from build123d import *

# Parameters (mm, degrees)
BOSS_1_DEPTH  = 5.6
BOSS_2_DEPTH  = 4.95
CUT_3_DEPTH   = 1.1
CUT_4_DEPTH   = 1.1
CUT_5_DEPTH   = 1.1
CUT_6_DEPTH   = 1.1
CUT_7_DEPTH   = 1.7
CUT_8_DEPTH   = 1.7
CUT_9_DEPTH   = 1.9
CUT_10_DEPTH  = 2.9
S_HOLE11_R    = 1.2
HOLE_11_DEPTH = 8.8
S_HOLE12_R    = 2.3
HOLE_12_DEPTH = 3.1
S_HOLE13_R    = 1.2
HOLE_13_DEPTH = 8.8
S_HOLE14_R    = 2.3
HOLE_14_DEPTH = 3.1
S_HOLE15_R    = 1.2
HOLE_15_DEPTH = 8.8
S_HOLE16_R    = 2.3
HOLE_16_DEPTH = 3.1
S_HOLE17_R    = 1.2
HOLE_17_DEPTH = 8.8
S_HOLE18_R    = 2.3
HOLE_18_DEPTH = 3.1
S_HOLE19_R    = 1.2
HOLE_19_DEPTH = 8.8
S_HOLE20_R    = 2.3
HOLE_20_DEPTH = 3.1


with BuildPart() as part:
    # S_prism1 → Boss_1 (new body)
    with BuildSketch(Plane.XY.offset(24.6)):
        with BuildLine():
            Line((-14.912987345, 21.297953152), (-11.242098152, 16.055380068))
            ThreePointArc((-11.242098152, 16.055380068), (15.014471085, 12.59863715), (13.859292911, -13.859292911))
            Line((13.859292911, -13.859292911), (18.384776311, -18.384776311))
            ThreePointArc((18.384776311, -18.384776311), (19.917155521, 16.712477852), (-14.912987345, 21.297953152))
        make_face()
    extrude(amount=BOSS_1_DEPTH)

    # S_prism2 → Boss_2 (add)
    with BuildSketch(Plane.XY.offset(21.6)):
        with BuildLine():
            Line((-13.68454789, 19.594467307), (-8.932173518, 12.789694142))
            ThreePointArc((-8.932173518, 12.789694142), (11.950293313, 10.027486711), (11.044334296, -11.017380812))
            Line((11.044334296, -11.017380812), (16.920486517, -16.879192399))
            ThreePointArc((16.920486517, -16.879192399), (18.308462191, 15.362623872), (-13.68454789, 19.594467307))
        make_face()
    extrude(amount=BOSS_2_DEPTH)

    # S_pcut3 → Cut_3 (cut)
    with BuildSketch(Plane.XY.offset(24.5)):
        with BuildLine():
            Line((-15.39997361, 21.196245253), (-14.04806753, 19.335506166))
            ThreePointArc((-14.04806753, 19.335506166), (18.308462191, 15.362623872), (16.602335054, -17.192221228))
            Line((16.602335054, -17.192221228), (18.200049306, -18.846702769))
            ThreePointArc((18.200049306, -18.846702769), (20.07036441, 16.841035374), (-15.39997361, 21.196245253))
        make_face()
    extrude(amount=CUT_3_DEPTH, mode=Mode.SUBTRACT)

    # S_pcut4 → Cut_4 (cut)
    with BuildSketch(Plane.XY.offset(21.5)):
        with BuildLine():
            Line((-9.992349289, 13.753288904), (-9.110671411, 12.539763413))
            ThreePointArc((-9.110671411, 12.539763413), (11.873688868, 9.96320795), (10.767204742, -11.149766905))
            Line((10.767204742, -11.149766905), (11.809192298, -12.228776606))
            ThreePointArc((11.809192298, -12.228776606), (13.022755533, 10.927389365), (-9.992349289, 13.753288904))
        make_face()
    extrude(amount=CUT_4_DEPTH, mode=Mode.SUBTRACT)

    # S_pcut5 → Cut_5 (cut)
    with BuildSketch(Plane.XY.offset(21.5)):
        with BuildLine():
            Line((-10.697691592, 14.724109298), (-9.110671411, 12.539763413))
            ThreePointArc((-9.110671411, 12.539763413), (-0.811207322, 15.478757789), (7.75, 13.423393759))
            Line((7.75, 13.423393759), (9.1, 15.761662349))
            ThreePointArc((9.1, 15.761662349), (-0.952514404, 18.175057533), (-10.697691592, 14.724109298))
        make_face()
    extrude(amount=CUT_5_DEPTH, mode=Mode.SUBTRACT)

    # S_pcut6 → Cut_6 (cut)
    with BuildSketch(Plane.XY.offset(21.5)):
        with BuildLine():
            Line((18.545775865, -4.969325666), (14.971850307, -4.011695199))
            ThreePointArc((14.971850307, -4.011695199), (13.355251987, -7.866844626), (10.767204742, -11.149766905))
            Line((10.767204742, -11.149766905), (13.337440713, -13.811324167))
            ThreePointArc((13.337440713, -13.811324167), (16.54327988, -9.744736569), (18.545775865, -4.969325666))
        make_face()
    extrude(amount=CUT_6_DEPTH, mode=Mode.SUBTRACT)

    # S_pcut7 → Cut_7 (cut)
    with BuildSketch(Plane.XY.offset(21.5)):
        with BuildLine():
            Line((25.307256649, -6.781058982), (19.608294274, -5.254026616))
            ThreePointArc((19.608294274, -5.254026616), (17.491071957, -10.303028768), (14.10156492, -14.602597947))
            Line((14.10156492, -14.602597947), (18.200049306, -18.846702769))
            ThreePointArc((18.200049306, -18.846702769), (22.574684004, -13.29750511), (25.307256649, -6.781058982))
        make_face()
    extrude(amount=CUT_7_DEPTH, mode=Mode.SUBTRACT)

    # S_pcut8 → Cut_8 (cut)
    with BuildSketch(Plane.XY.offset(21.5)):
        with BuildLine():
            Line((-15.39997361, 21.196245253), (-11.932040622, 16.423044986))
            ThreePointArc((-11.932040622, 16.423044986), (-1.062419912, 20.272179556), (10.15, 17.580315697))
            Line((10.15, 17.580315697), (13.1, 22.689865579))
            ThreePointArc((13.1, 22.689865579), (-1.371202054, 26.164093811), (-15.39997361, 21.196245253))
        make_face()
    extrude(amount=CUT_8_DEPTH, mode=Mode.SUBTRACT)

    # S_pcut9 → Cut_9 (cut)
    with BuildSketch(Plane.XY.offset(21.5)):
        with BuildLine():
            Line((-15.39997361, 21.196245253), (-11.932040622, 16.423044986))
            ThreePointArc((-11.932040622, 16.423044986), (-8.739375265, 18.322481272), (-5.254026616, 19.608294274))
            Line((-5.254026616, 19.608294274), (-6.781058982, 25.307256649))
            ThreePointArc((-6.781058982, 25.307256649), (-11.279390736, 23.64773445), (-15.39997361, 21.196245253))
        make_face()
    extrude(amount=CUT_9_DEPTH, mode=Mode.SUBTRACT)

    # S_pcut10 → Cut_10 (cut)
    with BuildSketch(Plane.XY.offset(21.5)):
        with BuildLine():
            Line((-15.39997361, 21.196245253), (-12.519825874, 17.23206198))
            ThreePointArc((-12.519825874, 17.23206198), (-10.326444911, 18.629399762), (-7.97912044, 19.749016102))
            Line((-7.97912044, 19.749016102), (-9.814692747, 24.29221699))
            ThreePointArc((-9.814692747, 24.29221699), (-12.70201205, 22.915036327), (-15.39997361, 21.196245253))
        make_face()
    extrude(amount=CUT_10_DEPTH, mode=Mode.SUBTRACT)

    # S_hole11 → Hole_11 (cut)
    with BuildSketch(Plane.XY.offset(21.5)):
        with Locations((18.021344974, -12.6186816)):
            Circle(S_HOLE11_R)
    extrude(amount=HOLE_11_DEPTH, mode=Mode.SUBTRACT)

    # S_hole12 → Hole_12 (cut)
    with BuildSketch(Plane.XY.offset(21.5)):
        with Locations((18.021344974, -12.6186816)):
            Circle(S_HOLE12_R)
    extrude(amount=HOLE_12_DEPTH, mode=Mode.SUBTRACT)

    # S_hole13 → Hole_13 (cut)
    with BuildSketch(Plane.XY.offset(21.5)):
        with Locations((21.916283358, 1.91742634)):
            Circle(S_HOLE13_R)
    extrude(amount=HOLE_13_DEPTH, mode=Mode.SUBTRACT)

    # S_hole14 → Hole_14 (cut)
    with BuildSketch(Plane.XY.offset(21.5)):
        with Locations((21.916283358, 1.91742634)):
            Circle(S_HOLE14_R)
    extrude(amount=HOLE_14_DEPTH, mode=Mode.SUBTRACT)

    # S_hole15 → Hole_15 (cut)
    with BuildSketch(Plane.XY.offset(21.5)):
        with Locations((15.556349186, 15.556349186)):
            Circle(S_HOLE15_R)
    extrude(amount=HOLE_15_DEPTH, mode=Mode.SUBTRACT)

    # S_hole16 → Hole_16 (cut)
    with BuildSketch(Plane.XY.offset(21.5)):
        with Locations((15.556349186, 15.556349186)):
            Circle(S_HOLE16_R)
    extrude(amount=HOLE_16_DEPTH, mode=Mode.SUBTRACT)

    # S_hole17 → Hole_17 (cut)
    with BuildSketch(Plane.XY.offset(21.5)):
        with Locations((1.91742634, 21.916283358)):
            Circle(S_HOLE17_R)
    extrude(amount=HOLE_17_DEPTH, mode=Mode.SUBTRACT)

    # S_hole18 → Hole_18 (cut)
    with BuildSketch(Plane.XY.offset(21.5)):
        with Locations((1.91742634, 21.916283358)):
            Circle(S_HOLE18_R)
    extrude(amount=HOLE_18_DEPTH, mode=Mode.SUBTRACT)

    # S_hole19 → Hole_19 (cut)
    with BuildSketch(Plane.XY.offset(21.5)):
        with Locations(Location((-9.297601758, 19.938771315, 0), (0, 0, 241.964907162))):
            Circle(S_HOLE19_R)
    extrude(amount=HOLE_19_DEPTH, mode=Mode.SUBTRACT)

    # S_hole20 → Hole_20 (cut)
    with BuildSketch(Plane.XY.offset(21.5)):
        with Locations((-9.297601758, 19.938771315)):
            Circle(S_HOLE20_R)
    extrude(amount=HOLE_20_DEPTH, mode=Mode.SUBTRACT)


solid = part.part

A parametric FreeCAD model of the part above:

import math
import FreeCAD as App
import Part
import Sketcher

V = App.Vector
Q = App.Units.Quantity

doc = App.newDocument("Part")
body = doc.addObject("PartDesign::Body", "Body")

# Sketch on XY plane
sketch1 = body.newObject("Sketcher::SketchObject", "Sketch")
sketch1.AttachmentSupport = (doc.getObject("XY_Plane"), [""])
sketch1.MapMode = "FlatFace"
sketch1.AttachmentOffset = App.Placement(V(0, 0, 24.6), App.Rotation())
sketch1.addGeometry([
    Part.LineSegment(V(-15, 21, 0), V(-11, 16, 0)),
    Part.ArcOfCircle(Part.Circle(V(0, 0, 0), V(0, 0, 1), 20), math.radians(-45), math.radians(125)),
    Part.LineSegment(V(14, -14, 0), V(18, -18, 0)),
    Part.ArcOfCircle(Part.Circle(V(0, 0, 0), V(0, 0, 1), 26), math.radians(-45), math.radians(125)),
], False)
sketch1.addConstraint([
    Sketcher.Constraint("Coincident", 0, 2, 1, 2),
    Sketcher.Constraint("Coincident", 1, 1, 2, 1),
    Sketcher.Constraint("Coincident", 2, 2, 3, 1),
    Sketcher.Constraint("Coincident", 3, 2, 0, 1),
    Sketcher.Constraint("Coincident", 1, 3, -1, 1),
    Sketcher.Constraint("Coincident", 3, 3, -1, 1),
    Sketcher.Constraint("Radius", 3, 26.0),
    Sketcher.Constraint("Radius", 1, 19.6),
    Sketcher.Constraint("Angle", 0, Q("-55 deg")),
    Sketcher.Constraint("Angle", 2, Q("-45 deg")),
    Sketcher.Constraint("DistanceX", 0, 2, -1, 1, 11.242098),
    Sketcher.Constraint("DistanceX", 0, 2, 1, 1, 25.101391),
])
pad1 = body.newObject("PartDesign::Pad", "Pad")
pad1.Profile = sketch1
pad1.Length = 5.6

# Sketch on XY plane
sketch2 = body.newObject("Sketcher::SketchObject", "Sketch001")
sketch2.AttachmentSupport = (doc.getObject("XY_Plane"), [""])
sketch2.MapMode = "FlatFace"
sketch2.AttachmentOffset = App.Placement(V(0, 0, 21.6), App.Rotation())
sketch2.addGeometry([
    Part.LineSegment(V(-14, 20, 0), V(-9, 13, 0)),
    Part.ArcOfCircle(Part.Circle(V(0, 0, 0), V(0, 0, 1), 16), math.radians(-45), math.radians(125)),
    Part.LineSegment(V(11, -11, 0), V(17, -17, 0)),
    Part.ArcOfCircle(Part.Circle(V(0, 0, 0), V(0, 0, 1), 24), math.radians(-45), math.radians(125)),
], False)
sketch2.addConstraint([
    Sketcher.Constraint("Coincident", 0, 2, 1, 2),
    Sketcher.Constraint("Coincident", 1, 1, 2, 1),
    Sketcher.Constraint("Coincident", 2, 2, 3, 1),
    Sketcher.Constraint("Coincident", 3, 2, 0, 1),
    Sketcher.Constraint("Coincident", 1, 3, -1, 1),
    Sketcher.Constraint("Coincident", 3, 3, -1, 1),
    Sketcher.Constraint("Radius", 1, 15.6),
    Sketcher.Constraint("Radius", 3, 23.9),
    Sketcher.Constraint("Angle", 0, Q("-55.07 deg")),
    Sketcher.Constraint("Angle", 2, Q("-44.93 deg")),
    Sketcher.Constraint("DistanceY", 1, 1, -1, 1, 11.017381),
    Sketcher.Constraint("DistanceX", 0, 2, 2, 2, 25.85266),
])
pad2 = body.newObject("PartDesign::Pad", "Pad001")
pad2.Profile = sketch2
pad2.Length = 4.95

# Sketch on XY plane
sketch3 = body.newObject("Sketcher::SketchObject", "Sketch002")
sketch3.AttachmentSupport = (doc.getObject("XY_Plane"), [""])
sketch3.MapMode = "FlatFace"
sketch3.AttachmentOffset = App.Placement(V(0, 0, 24.5), App.Rotation())
sketch3.addGeometry([
    Part.LineSegment(V(-15.4, 21.2, 0), V(-14, 19.3, 0)),
    Part.ArcOfCircle(Part.Circle(V(0, 0, 0), V(0, 0, 1), 23.9), math.radians(-46), math.radians(126)),
    Part.LineSegment(V(16.6, -17.2, 0), V(18.2, -18.8, 0)),
    Part.ArcOfCircle(Part.Circle(V(0, 0, 0), V(0, 0, 1), 26.2), math.radians(-46), math.radians(126)),
], False)
sketch3.addConstraint([
    Sketcher.Constraint("Coincident", 0, 2, 1, 2),
    Sketcher.Constraint("Coincident", 1, 1, 2, 1),
    Sketcher.Constraint("Coincident", 2, 2, 3, 1),
    Sketcher.Constraint("Coincident", 3, 2, 0, 1),
    Sketcher.Constraint("Coincident", 1, 3, -1, 1),
    Sketcher.Constraint("Coincident", 3, 3, -1, 1),
    Sketcher.Constraint("Radius", 1, 23.9),
    Sketcher.Constraint("Radius", 3, 26.2),
    Sketcher.Constraint("Angle", 0, Q("-54 deg")),
    Sketcher.Constraint("Angle", 2, Q("-46 deg")),
    Sketcher.Constraint("DistanceY", 1, 1, -1, 1, 17.192221),
    Sketcher.Constraint("DistanceY", 2, 2, 0, 2, 38.182209),
])
pocket1 = body.newObject("PartDesign::Pocket", "Pocket")
pocket1.Profile = sketch3
pocket1.Length = 1.1
pocket1.Reversed = True

# Sketch on XY plane
sketch4 = body.newObject("Sketcher::SketchObject", "Sketch003")
sketch4.AttachmentSupport = (doc.getObject("XY_Plane"), [""])
sketch4.MapMode = "FlatFace"
sketch4.AttachmentOffset = App.Placement(V(0, 0, 21.5), App.Rotation())
sketch4.addGeometry([
    Part.LineSegment(V(-10, 13.8, 0), V(-9.1, 12.5, 0)),
    Part.ArcOfCircle(Part.Circle(V(0, 0, 0), V(0, 0, 1), 15.5), math.radians(-46), math.radians(126)),
    Part.LineSegment(V(10.8, -11.1, 0), V(11.8, -12.2, 0)),
    Part.ArcOfCircle(Part.Circle(V(0, 0, 0), V(0, 0, 1), 17), math.radians(-46), math.radians(126)),
], False)
sketch4.addConstraint([
    Sketcher.Constraint("Coincident", 0, 2, 1, 2),
    Sketcher.Constraint("Coincident", 1, 1, 2, 1),
    Sketcher.Constraint("Coincident", 2, 2, 3, 1),
    Sketcher.Constraint("Coincident", 3, 2, 0, 1),
    Sketcher.Constraint("Coincident", 1, 3, -1, 1),
    Sketcher.Constraint("Coincident", 3, 3, -1, 1),
    Sketcher.Constraint("Radius", 3, 17.0),
    Sketcher.Constraint("Radius", 1, 15.5),
    Sketcher.Constraint("Angle", 0, Q("-54 deg")),
    Sketcher.Constraint("Angle", 2, Q("-46 deg")),
    Sketcher.Constraint("DistanceX", 0, 2, -1, 1, 9.110671),
    Sketcher.Constraint("DistanceY", 1, 1, 0, 2, 23.68953),
])
pocket2 = body.newObject("PartDesign::Pocket", "Pocket001")
pocket2.Profile = sketch4
pocket2.Length = 1.1
pocket2.Reversed = True

# Sketch on XY plane
sketch5 = body.newObject("Sketcher::SketchObject", "Sketch004")
sketch5.AttachmentSupport = (doc.getObject("XY_Plane"), [""])
sketch5.MapMode = "FlatFace"
sketch5.AttachmentOffset = App.Placement(V(0, 0, 21.5), App.Rotation())
sketch5.addGeometry([
    Part.LineSegment(V(-10.7, 14.7, 0), V(-9.1, 12.5, 0)),
    Part.ArcOfCircle(Part.Circle(V(0, 0, 0), V(0, 0, 1), 15.5), math.radians(60), math.radians(126)),
    Part.LineSegment(V(7.8, 13.4, 0), V(9.1, 15.8, 0)),
    Part.ArcOfCircle(Part.Circle(V(0, 0, 0), V(0, 0, 1), 18.2), math.radians(60), math.radians(126)),
], False)
sketch5.addConstraint([
    Sketcher.Constraint("Coincident", 0, 2, 1, 2),
    Sketcher.Constraint("Coincident", 1, 1, 2, 1),
    Sketcher.Constraint("Coincident", 2, 2, 3, 1),
    Sketcher.Constraint("Coincident", 3, 2, 0, 1),
    Sketcher.Constraint("Coincident", 1, 3, -1, 1),
    Sketcher.Constraint("Coincident", 3, 3, -1, 1),
    Sketcher.Constraint("Radius", 1, 15.5),
    Sketcher.Constraint("Radius", 3, 18.2),
    Sketcher.Constraint("Angle", 0, Q("-54 deg")),
    Sketcher.Constraint("Angle", 2, Q("60 deg")),
    Sketcher.Constraint("DistanceX", -1, 1, 2, 2, 9.1),
    Sketcher.Constraint("DistanceY", 0, 2, 2, 2, 3.221899),
])
pocket3 = body.newObject("PartDesign::Pocket", "Pocket002")
pocket3.Profile = sketch5
pocket3.Length = 1.1
pocket3.Reversed = True

# Sketch on XY plane
sketch6 = body.newObject("Sketcher::SketchObject", "Sketch005")
sketch6.AttachmentSupport = (doc.getObject("XY_Plane"), [""])
sketch6.MapMode = "FlatFace"
sketch6.AttachmentOffset = App.Placement(V(0, 0, 21.5), App.Rotation())
sketch6.addGeometry([
    Part.LineSegment(V(18.5, -5, 0), V(15, -4, 0)),
    Part.ArcOfCircle(Part.Circle(V(0, 0, 0), V(0, 0, 1), 15.5), math.radians(-46), math.radians(-15)),
    Part.LineSegment(V(10.8, -11.1, 0), V(13.3, -13.8, 0)),
    Part.ArcOfCircle(Part.Circle(V(0, 0, 0), V(0, 0, 1), 19.2), math.radians(-46), math.radians(-15)),
], False)
sketch6.addConstraint([
    Sketcher.Constraint("Coincident", 0, 2, 1, 2),
    Sketcher.Constraint("Coincident", 1, 1, 2, 1),
    Sketcher.Constraint("Coincident", 2, 2, 3, 1),
    Sketcher.Constraint("Coincident", 3, 2, 0, 1),
    Sketcher.Constraint("Coincident", 1, 3, -1, 1),
    Sketcher.Constraint("Coincident", 3, 3, -1, 1),
    Sketcher.Constraint("Radius", 1, 15.5),
    Sketcher.Constraint("Radius", 3, 19.2),
    Sketcher.Constraint("Angle", 0, Q("165 deg")),
    Sketcher.Constraint("Angle", 2, Q("-46 deg")),
    Sketcher.Constraint("DistanceY", 2, 2, 3, 2, 8.841999),
    Sketcher.Constraint("DistanceX", -1, 1, 0, 2, 14.97185),
])
pocket4 = body.newObject("PartDesign::Pocket", "Pocket003")
pocket4.Profile = sketch6
pocket4.Length = 1.1
pocket4.Reversed = True

# Sketch on XY plane
sketch7 = body.newObject("Sketcher::SketchObject", "Sketch006")
sketch7.AttachmentSupport = (doc.getObject("XY_Plane"), [""])
sketch7.MapMode = "FlatFace"
sketch7.AttachmentOffset = App.Placement(V(0, 0, 21.5), App.Rotation())
sketch7.addGeometry([
    Part.LineSegment(V(25, -7, 0), V(20, -5, 0)),
    Part.ArcOfCircle(Part.Circle(V(0, 0, 0), V(0, 0, 1), 20), math.radians(-46), math.radians(-15)),
    Part.LineSegment(V(14, -15, 0), V(18, -19, 0)),
    Part.ArcOfCircle(Part.Circle(V(0, 0, 0), V(0, 0, 1), 26), math.radians(-46), math.radians(-15)),
], False)
sketch7.addConstraint([
    Sketcher.Constraint("Coincident", 0, 2, 1, 2),
    Sketcher.Constraint("Coincident", 1, 1, 2, 1),
    Sketcher.Constraint("Coincident", 2, 2, 3, 1),
    Sketcher.Constraint("Coincident", 3, 2, 0, 1),
    Sketcher.Constraint("Coincident", 1, 3, -1, 1),
    Sketcher.Constraint("Coincident", 3, 3, -1, 1),
    Sketcher.Constraint("Radius", 1, 20.3),
    Sketcher.Constraint("Radius", 3, 26.2),
    Sketcher.Constraint("Angle", 0, Q("165 deg")),
    Sketcher.Constraint("Angle", 2, Q("-46 deg")),
    Sketcher.Constraint("DistanceX", -1, 1, 2, 2, 18.200049),
    Sketcher.Constraint("DistanceY", 3, 2, -1, 1, 6.781059),
])
pocket5 = body.newObject("PartDesign::Pocket", "Pocket004")
pocket5.Profile = sketch7
pocket5.Length = 1.7
pocket5.Reversed = True

# Sketch on XY plane
sketch8 = body.newObject("Sketcher::SketchObject", "Sketch007")
sketch8.AttachmentSupport = (doc.getObject("XY_Plane"), [""])
sketch8.MapMode = "FlatFace"
sketch8.AttachmentOffset = App.Placement(V(0, 0, 21.5), App.Rotation())
sketch8.addGeometry([
    Part.LineSegment(V(-15, 21, 0), V(-12, 16, 0)),
    Part.ArcOfCircle(Part.Circle(V(0, 0, 0), V(0, 0, 1), 20), math.radians(60), math.radians(126)),
    Part.LineSegment(V(10, 18, 0), V(13, 23, 0)),
    Part.ArcOfCircle(Part.Circle(V(0, 0, 0), V(0, 0, 1), 26), math.radians(60), math.radians(126)),
], False)
sketch8.addConstraint([
    Sketcher.Constraint("Coincident", 0, 2, 1, 2),
    Sketcher.Constraint("Coincident", 1, 1, 2, 1),
    Sketcher.Constraint("Coincident", 2, 2, 3, 1),
    Sketcher.Constraint("Coincident", 3, 2, 0, 1),
    Sketcher.Constraint("Coincident", 1, 3, -1, 1),
    Sketcher.Constraint("Coincident", 3, 3, -1, 1),
    Sketcher.Constraint("Radius", 1, 20.3),
    Sketcher.Constraint("Radius", 3, 26.2),
    Sketcher.Constraint("Angle", 0, Q("-54 deg")),
    Sketcher.Constraint("Angle", 2, Q("60 deg")),
    Sketcher.Constraint("DistanceX", -1, 1, 2, 2, 13.1),
    Sketcher.Constraint("DistanceX", 0, 2, -1, 1, 11.932041),
])
pocket6 = body.newObject("PartDesign::Pocket", "Pocket005")
pocket6.Profile = sketch8
pocket6.Length = 1.7
pocket6.Reversed = True

# Sketch on XY plane
sketch9 = body.newObject("Sketcher::SketchObject", "Sketch008")
sketch9.AttachmentSupport = (doc.getObject("XY_Plane"), [""])
sketch9.MapMode = "FlatFace"
sketch9.AttachmentOffset = App.Placement(V(0, 0, 21.5), App.Rotation())
sketch9.addGeometry([
    Part.LineSegment(V(-15, 21, 0), V(-12, 16, 0)),
    Part.ArcOfCircle(Part.Circle(V(0, 0, 0), V(0, 0, 1), 20), math.radians(105), math.radians(126)),
    Part.LineSegment(V(-5, 20, 0), V(-7, 25, 0)),
    Part.ArcOfCircle(Part.Circle(V(0, 0, 0), V(0, 0, 1), 26), math.radians(105), math.radians(126)),
], False)
sketch9.addConstraint([
    Sketcher.Constraint("Coincident", 0, 2, 1, 2),
    Sketcher.Constraint("Coincident", 1, 1, 2, 1),
    Sketcher.Constraint("Coincident", 2, 2, 3, 1),
    Sketcher.Constraint("Coincident", 3, 2, 0, 1),
    Sketcher.Constraint("Coincident", 1, 3, -1, 1),
    Sketcher.Constraint("Coincident", 3, 3, -1, 1),
    Sketcher.Constraint("Radius", 1, 20.3),
    Sketcher.Constraint("Radius", 3, 26.2),
    Sketcher.Constraint("Angle", 0, Q("-54 deg")),
    Sketcher.Constraint("Angle", 2, Q("105 deg")),
    Sketcher.Constraint("DistanceX", 0, 2, -1, 1, 11.932041),
    Sketcher.Constraint("DistanceX", 2, 2, -1, 1, 6.781059),
])
pocket7 = body.newObject("PartDesign::Pocket", "Pocket006")
pocket7.Profile = sketch9
pocket7.Length = 1.9
pocket7.Reversed = True

# Sketch on XY plane
sketch10 = body.newObject("Sketcher::SketchObject", "Sketch009")
sketch10.AttachmentSupport = (doc.getObject("XY_Plane"), [""])
sketch10.MapMode = "FlatFace"
sketch10.AttachmentOffset = App.Placement(V(0, 0, 21.5), App.Rotation())
sketch10.addGeometry([
    Part.LineSegment(V(-15.4, 21.2, 0), V(-12.5, 17.2, 0)),
    Part.ArcOfCircle(Part.Circle(V(0, 0, 0), V(0, 0, 1), 21.3), math.radians(112), math.radians(126)),
    Part.LineSegment(V(-8, 19.7, 0), V(-9.8, 24.3, 0)),
    Part.ArcOfCircle(Part.Circle(V(0, 0, 0), V(0, 0, 1), 26.2), math.radians(112), math.radians(126)),
], False)
sketch10.addConstraint([
    Sketcher.Constraint("Coincident", 0, 2, 1, 2),
    Sketcher.Constraint("Coincident", 1, 1, 2, 1),
    Sketcher.Constraint("Coincident", 2, 2, 3, 1),
    Sketcher.Constraint("Coincident", 3, 2, 0, 1),
    Sketcher.Constraint("Coincident", 1, 3, -1, 1),
    Sketcher.Constraint("Coincident", 3, 3, -1, 1),
    Sketcher.Constraint("Radius", 1, 21.3),
    Sketcher.Constraint("Radius", 3, 26.2),
    Sketcher.Constraint("Angle", 0, Q("-54 deg")),
    Sketcher.Constraint("Angle", 2, Q("112 deg")),
    Sketcher.Constraint("DistanceY", -1, 1, 0, 2, 17.232062),
    Sketcher.Constraint("DistanceX", 1, 1, -1, 1, 7.97912),
])
pocket8 = body.newObject("PartDesign::Pocket", "Pocket007")
pocket8.Profile = sketch10
pocket8.Length = 2.9
pocket8.Reversed = True

# Sketch on XY plane
sketch11 = body.newObject("Sketcher::SketchObject", "Sketch010")
sketch11.AttachmentSupport = (doc.getObject("XY_Plane"), [""])
sketch11.MapMode = "FlatFace"
sketch11.AttachmentOffset = App.Placement(V(0, 0, 21.5), App.Rotation())
sketch11.addGeometry(Part.Circle(V(18, -12.6, 0), V(0, 0, 1), 1.2), False)
sketch11.addConstraint([
    Sketcher.Constraint("Diameter", 0, 2.4),
    Sketcher.Constraint("DistanceY", 0, 3, -1, 1, 12.618682),
    Sketcher.Constraint("DistanceX", -1, 1, 0, 3, 18.021345),
])
pocket9 = body.newObject("PartDesign::Pocket", "Pocket008")
pocket9.Profile = sketch11
pocket9.Length = 8.8
pocket9.Reversed = True

# Sketch on XY plane
sketch12 = body.newObject("Sketcher::SketchObject", "Sketch011")
sketch12.AttachmentSupport = (doc.getObject("XY_Plane"), [""])
sketch12.MapMode = "FlatFace"
sketch12.AttachmentOffset = App.Placement(V(0, 0, 21.5), App.Rotation())
sketch12.addGeometry(Part.Circle(V(18, -12.6, 0), V(0, 0, 1), 2.3), False)
sketch12.addConstraint([
    Sketcher.Constraint("Diameter", 0, 4.6),
    Sketcher.Constraint("DistanceY", 0, 3, -1, 1, 12.618682),
    Sketcher.Constraint("DistanceX", -1, 1, 0, 3, 18.021345),
])
pocket10 = body.newObject("PartDesign::Pocket", "Pocket009")
pocket10.Profile = sketch12
pocket10.Length = 3.1
pocket10.Reversed = True

# Sketch on XY plane
sketch13 = body.newObject("Sketcher::SketchObject", "Sketch012")
sketch13.AttachmentSupport = (doc.getObject("XY_Plane"), [""])
sketch13.MapMode = "FlatFace"
sketch13.AttachmentOffset = App.Placement(V(0, 0, 21.5), App.Rotation())
sketch13.addGeometry(Part.Circle(V(21.9, 1.9, 0), V(0, 0, 1), 1.2), False)
sketch13.addConstraint([
    Sketcher.Constraint("Diameter", 0, 2.4),
    Sketcher.Constraint("DistanceX", -1, 1, 0, 3, 21.916283),
    Sketcher.Constraint("DistanceY", -1, 1, 0, 3, 1.917426),
])
pocket11 = body.newObject("PartDesign::Pocket", "Pocket010")
pocket11.Profile = sketch13
pocket11.Length = 8.8
pocket11.Reversed = True

# Sketch on XY plane
sketch14 = body.newObject("Sketcher::SketchObject", "Sketch013")
sketch14.AttachmentSupport = (doc.getObject("XY_Plane"), [""])
sketch14.MapMode = "FlatFace"
sketch14.AttachmentOffset = App.Placement(V(0, 0, 21.5), App.Rotation())
sketch14.addGeometry(Part.Circle(V(21.9, 1.9, 0), V(0, 0, 1), 2.3), False)
sketch14.addConstraint([
    Sketcher.Constraint("Diameter", 0, 4.6),
    Sketcher.Constraint("DistanceX", -1, 1, 0, 3, 21.916283),
    Sketcher.Constraint("DistanceY", -1, 1, 0, 3, 1.917426),
])
pocket12 = body.newObject("PartDesign::Pocket", "Pocket011")
pocket12.Profile = sketch14
pocket12.Length = 3.1
pocket12.Reversed = True

# Sketch on XY plane
sketch15 = body.newObject("Sketcher::SketchObject", "Sketch014")
sketch15.AttachmentSupport = (doc.getObject("XY_Plane"), [""])
sketch15.MapMode = "FlatFace"
sketch15.AttachmentOffset = App.Placement(V(0, 0, 21.5), App.Rotation())
sketch15.addGeometry(Part.Circle(V(15.6, 15.6, 0), V(0, 0, 1), 1.2), False)
sketch15.addConstraint([
    Sketcher.Constraint("Diameter", 0, 2.4),
    Sketcher.Constraint("DistanceX", -1, 1, 0, 3, 15.556349),
    Sketcher.Constraint("DistanceY", -1, 1, 0, 3, 15.556349),
])
pocket13 = body.newObject("PartDesign::Pocket", "Pocket012")
pocket13.Profile = sketch15
pocket13.Length = 8.8
pocket13.Reversed = True

# Sketch on XY plane
sketch16 = body.newObject("Sketcher::SketchObject", "Sketch015")
sketch16.AttachmentSupport = (doc.getObject("XY_Plane"), [""])
sketch16.MapMode = "FlatFace"
sketch16.AttachmentOffset = App.Placement(V(0, 0, 21.5), App.Rotation())
sketch16.addGeometry(Part.Circle(V(15.6, 15.6, 0), V(0, 0, 1), 2.3), False)
sketch16.addConstraint([
    Sketcher.Constraint("Diameter", 0, 4.6),
    Sketcher.Constraint("DistanceX", -1, 1, 0, 3, 15.556349),
    Sketcher.Constraint("DistanceY", -1, 1, 0, 3, 15.556349),
])
pocket14 = body.newObject("PartDesign::Pocket", "Pocket013")
pocket14.Profile = sketch16
pocket14.Length = 3.1
pocket14.Reversed = True

# Sketch on XY plane
sketch17 = body.newObject("Sketcher::SketchObject", "Sketch016")
sketch17.AttachmentSupport = (doc.getObject("XY_Plane"), [""])
sketch17.MapMode = "FlatFace"
sketch17.AttachmentOffset = App.Placement(V(0, 0, 21.5), App.Rotation())
sketch17.addGeometry(Part.Circle(V(1.9, 21.9, 0), V(0, 0, 1), 1.2), False)
sketch17.addConstraint([
    Sketcher.Constraint("Diameter", 0, 2.4),
    Sketcher.Constraint("DistanceX", -1, 1, 0, 3, 1.917426),
    Sketcher.Constraint("DistanceY", -1, 1, 0, 3, 21.916283),
])
pocket15 = body.newObject("PartDesign::Pocket", "Pocket014")
pocket15.Profile = sketch17
pocket15.Length = 8.8
pocket15.Reversed = True

# Sketch on XY plane
sketch18 = body.newObject("Sketcher::SketchObject", "Sketch017")
sketch18.AttachmentSupport = (doc.getObject("XY_Plane"), [""])
sketch18.MapMode = "FlatFace"
sketch18.AttachmentOffset = App.Placement(V(0, 0, 21.5), App.Rotation())
sketch18.addGeometry(Part.Circle(V(1.9, 21.9, 0), V(0, 0, 1), 2.3), False)
sketch18.addConstraint([
    Sketcher.Constraint("Diameter", 0, 4.6),
    Sketcher.Constraint("DistanceX", -1, 1, 0, 3, 1.917426),
    Sketcher.Constraint("DistanceY", -1, 1, 0, 3, 21.916283),
])
pocket16 = body.newObject("PartDesign::Pocket", "Pocket015")
pocket16.Profile = sketch18
pocket16.Length = 3.1
pocket16.Reversed = True

# Sketch on XY plane
sketch19 = body.newObject("Sketcher::SketchObject", "Sketch018")
sketch19.AttachmentSupport = (doc.getObject("XY_Plane"), [""])
sketch19.MapMode = "FlatFace"
sketch19.AttachmentOffset = App.Placement(V(0, 0, 21.5), App.Rotation())
sketch19.addGeometry(Part.Circle(V(-9.3, 19.9, 0), V(0, 0, 1), 1.2), False)
sketch19.addConstraint([
    Sketcher.Constraint("Diameter", 0, 2.4),
    Sketcher.Constraint("DistanceX", 0, 3, -1, 1, 9.297602),
    Sketcher.Constraint("DistanceY", -1, 1, 0, 3, 19.938771),
])
pocket17 = body.newObject("PartDesign::Pocket", "Pocket016")
pocket17.Profile = sketch19
pocket17.Length = 8.8
pocket17.Reversed = True

# Sketch on XY plane
sketch20 = body.newObject("Sketcher::SketchObject", "Sketch019")
sketch20.AttachmentSupport = (doc.getObject("XY_Plane"), [""])
sketch20.MapMode = "FlatFace"
sketch20.AttachmentOffset = App.Placement(V(0, 0, 21.5), App.Rotation())
sketch20.addGeometry(Part.Circle(V(-9.3, 19.9, 0), V(0, 0, 1), 2.3), False)
sketch20.addConstraint([
    Sketcher.Constraint("Diameter", 0, 4.6),
    Sketcher.Constraint("DistanceX", 0, 3, -1, 1, 9.297602),
    Sketcher.Constraint("DistanceY", -1, 1, 0, 3, 19.938771),
])
pocket18 = body.newObject("PartDesign::Pocket", "Pocket017")
pocket18.Profile = sketch20
pocket18.Length = 3.1
pocket18.Reversed = True

doc.recompute()
